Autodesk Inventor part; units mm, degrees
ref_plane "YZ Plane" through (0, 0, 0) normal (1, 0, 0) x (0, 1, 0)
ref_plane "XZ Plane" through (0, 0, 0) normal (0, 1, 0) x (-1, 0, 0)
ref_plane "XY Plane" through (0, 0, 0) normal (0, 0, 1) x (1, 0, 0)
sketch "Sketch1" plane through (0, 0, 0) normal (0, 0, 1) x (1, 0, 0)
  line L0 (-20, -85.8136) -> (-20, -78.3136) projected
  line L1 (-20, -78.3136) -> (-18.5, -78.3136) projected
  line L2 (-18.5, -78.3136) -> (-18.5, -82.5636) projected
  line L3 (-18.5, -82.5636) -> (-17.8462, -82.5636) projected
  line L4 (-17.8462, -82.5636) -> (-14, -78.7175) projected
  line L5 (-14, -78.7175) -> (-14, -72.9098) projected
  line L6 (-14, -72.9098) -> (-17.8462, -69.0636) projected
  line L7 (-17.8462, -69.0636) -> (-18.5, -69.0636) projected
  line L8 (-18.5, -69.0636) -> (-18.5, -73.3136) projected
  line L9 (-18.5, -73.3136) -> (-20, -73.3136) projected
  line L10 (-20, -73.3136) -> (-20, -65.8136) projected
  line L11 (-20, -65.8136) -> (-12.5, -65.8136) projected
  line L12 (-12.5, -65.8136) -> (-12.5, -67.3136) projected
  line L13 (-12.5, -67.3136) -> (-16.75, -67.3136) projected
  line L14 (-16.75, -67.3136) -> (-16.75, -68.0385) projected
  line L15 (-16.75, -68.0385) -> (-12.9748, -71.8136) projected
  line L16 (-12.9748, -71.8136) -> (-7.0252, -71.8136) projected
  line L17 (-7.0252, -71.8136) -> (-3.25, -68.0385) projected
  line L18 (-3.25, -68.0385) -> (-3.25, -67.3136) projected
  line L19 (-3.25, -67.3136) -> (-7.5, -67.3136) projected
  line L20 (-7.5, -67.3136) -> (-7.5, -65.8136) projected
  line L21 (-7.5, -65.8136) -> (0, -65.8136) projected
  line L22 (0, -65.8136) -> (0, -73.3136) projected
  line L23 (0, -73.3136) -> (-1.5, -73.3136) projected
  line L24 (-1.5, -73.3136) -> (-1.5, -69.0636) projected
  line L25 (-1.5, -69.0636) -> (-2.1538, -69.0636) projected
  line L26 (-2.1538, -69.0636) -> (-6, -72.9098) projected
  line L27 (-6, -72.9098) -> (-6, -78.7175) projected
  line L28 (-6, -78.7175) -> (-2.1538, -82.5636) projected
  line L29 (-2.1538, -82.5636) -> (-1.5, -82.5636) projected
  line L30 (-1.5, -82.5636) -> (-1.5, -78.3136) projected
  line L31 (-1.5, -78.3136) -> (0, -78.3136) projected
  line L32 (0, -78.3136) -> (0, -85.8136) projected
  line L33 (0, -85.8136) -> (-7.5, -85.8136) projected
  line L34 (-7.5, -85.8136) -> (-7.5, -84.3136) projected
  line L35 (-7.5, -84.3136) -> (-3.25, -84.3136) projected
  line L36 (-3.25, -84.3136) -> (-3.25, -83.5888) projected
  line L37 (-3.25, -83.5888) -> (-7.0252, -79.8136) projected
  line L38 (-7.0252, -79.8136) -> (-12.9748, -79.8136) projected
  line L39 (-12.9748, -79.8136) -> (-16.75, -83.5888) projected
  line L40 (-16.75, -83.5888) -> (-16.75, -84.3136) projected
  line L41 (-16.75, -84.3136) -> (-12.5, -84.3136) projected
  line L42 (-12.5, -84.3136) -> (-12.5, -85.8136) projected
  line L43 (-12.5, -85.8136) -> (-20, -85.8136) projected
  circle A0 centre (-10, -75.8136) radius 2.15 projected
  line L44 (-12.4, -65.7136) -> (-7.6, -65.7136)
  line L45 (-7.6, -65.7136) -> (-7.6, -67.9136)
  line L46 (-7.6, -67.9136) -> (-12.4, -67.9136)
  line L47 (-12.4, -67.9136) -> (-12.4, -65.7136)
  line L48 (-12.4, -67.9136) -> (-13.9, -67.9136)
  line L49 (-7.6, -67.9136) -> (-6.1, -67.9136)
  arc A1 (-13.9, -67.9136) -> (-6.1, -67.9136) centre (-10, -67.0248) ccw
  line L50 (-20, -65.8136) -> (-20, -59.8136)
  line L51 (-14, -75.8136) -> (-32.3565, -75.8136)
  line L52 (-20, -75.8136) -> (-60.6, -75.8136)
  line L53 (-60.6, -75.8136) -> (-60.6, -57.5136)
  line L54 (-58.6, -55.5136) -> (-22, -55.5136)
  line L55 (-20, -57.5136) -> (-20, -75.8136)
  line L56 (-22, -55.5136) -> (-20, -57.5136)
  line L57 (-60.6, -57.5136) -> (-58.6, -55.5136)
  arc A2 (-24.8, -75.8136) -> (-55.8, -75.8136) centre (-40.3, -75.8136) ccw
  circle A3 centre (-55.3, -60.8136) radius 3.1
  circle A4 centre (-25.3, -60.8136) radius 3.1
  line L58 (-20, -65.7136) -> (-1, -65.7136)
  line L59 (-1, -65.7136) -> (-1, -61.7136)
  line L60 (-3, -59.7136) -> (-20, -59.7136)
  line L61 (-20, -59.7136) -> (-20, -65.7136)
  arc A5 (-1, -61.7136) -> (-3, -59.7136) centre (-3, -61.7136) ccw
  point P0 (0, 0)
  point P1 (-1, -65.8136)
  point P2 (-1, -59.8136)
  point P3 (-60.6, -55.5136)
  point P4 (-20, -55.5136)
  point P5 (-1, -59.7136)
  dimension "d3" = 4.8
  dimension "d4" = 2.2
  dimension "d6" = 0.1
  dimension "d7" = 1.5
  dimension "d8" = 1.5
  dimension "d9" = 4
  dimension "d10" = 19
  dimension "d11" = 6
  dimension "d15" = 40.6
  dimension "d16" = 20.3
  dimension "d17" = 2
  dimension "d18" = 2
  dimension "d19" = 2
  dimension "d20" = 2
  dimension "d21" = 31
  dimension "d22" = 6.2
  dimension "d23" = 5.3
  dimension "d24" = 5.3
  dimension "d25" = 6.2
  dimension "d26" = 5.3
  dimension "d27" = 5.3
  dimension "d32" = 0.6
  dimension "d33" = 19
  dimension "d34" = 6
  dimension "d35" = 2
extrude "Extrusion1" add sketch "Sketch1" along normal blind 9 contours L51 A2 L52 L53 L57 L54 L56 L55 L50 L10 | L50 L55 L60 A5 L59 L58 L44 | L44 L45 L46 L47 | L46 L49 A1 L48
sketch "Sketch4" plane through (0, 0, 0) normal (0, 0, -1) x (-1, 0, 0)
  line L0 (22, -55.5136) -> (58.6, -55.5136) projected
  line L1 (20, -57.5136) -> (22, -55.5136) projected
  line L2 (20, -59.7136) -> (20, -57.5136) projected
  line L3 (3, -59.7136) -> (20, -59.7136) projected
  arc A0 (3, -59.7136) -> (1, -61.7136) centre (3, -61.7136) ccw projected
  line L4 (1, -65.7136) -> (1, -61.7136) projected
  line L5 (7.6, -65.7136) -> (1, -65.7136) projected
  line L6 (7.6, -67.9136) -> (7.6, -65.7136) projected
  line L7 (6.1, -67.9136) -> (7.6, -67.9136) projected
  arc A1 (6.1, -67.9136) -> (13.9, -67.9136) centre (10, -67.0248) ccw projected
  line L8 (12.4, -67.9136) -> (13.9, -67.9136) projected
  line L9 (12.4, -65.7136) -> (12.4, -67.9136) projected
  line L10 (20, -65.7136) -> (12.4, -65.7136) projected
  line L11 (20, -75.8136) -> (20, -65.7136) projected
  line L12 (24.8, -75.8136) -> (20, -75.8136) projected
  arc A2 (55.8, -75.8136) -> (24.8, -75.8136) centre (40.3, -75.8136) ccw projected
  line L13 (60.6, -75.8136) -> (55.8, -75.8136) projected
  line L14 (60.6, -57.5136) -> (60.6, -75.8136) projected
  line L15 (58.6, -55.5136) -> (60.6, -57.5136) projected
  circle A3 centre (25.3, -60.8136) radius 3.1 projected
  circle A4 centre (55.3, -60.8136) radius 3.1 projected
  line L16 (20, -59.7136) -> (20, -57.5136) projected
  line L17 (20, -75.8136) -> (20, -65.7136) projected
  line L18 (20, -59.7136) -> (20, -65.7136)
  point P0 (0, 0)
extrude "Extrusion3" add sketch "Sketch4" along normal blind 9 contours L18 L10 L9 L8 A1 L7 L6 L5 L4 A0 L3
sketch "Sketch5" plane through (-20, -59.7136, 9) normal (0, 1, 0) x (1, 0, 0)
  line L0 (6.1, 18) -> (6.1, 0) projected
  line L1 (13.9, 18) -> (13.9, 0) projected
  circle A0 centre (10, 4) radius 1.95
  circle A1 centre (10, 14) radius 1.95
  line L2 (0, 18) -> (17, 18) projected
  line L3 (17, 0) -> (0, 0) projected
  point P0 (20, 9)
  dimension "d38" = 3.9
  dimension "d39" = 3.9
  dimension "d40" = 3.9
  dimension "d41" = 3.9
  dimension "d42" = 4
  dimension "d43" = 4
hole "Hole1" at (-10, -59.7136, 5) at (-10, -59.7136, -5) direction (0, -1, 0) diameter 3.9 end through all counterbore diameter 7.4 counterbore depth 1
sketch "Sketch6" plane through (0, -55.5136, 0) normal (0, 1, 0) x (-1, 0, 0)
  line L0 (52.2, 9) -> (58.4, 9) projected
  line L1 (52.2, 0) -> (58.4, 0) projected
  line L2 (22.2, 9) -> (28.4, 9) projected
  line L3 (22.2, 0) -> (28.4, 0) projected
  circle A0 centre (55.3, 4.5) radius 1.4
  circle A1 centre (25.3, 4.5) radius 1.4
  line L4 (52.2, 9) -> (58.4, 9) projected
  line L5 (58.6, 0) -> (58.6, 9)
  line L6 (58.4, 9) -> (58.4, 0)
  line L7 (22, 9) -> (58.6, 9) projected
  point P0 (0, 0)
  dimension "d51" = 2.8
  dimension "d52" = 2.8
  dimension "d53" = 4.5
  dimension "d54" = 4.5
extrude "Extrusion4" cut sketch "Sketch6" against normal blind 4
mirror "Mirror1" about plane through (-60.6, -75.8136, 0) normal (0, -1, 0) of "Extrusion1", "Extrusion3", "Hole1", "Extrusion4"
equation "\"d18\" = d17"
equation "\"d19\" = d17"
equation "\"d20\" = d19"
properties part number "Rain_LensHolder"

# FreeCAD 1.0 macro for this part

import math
import FreeCAD as App
import Part
import Sketcher

V = App.Vector

doc = App.newDocument("Part")
body = doc.addObject("PartDesign::Body", "Body")

# Sketch on XY plane
sketch1 = body.newObject("Sketcher::SketchObject", "Sketch")
sketch1.AttachmentSupport = (doc.getObject("XY_Plane"), [""])
sketch1.MapMode = "FlatFace"
sketch1.addGeometry([
    Part.LineSegment(V(-24.8, -75.8136, 0), V(-20, -75.8136, 0)),  # 0
    Part.LineSegment(V(-20, -75.8136, 0), V(-20, -65.7136, 0)),  # 1
    Part.LineSegment(V(-20, -65.7136, 0), V(-12.4, -65.7136, 0)),  # 2
    Part.LineSegment(V(-12.4, -65.7136, 0), V(-12.4, -67.9136, 0)),  # 3
    Part.LineSegment(V(-12.4, -67.9136, 0), V(-13.9, -67.9136, 0)),  # 4
    Part.ArcOfCircle(Part.Circle(V(-10, -67.0248, 0), V(0, 0, 1), 3.999996), math.radians(-167.161703), math.radians(-12.838297)),  # 5
    Part.LineSegment(V(-6.1, -67.9136, 0), V(-7.6, -67.9136, 0)),  # 6
    Part.LineSegment(V(-7.6, -67.9136, 0), V(-7.6, -65.7136, 0)),  # 7
    Part.LineSegment(V(-7.6, -65.7136, 0), V(-1, -65.7136, 0)),  # 8
    Part.LineSegment(V(-1, -65.7136, 0), V(-1, -61.7136, 0)),  # 9
    Part.ArcOfCircle(Part.Circle(V(-3, -61.7136, 0), V(0, 0, 1), 2), math.radians(0), math.radians(90)),  # 10
    Part.LineSegment(V(-3, -59.7136, 0), V(-20, -59.7136, 0)),  # 11
    Part.LineSegment(V(-20, -59.7136, 0), V(-20, -57.5136, 0)),  # 12
    Part.LineSegment(V(-20, -57.5136, 0), V(-22, -55.5136, 0)),  # 13
    Part.LineSegment(V(-22, -55.5136, 0), V(-58.6, -55.5136, 0)),  # 14
    Part.LineSegment(V(-58.6, -55.5136, 0), V(-60.6, -57.5136, 0)),  # 15
    Part.LineSegment(V(-60.6, -57.5136, 0), V(-60.6, -75.8136, 0)),  # 16
    Part.LineSegment(V(-60.6, -75.8136, 0), V(-55.8, -75.8136, 0)),  # 17
    Part.ArcOfCircle(Part.Circle(V(-40.3, -75.8136, 0), V(0, 0, 1), 15.5), math.radians(0), math.radians(180)),  # 18
    Part.Circle(V(-55.3, -60.8136, 0), V(0, 0, 1), 3.1),  # 19
    Part.Circle(V(-25.3, -60.8136, 0), V(0, 0, 1), 3.1),  # 20
], False)
sketch1.addConstraint([
    Sketcher.Constraint("Coincident", 0, 2, 1, 1),
    Sketcher.Constraint("Coincident", 1, 2, 2, 1),
    Sketcher.Constraint("Coincident", 2, 2, 3, 1),
    Sketcher.Constraint("Coincident", 3, 2, 4, 1),
    Sketcher.Constraint("Coincident", 4, 2, 5, 1),
    Sketcher.Constraint("Coincident", 5, 2, 6, 1),
    Sketcher.Constraint("Coincident", 6, 2, 7, 1),
    Sketcher.Constraint("Coincident", 7, 2, 8, 1),
    Sketcher.Constraint("Coincident", 8, 2, 9, 1),
    Sketcher.Constraint("Tangent", 9, 2, 10, 1),
    Sketcher.Constraint("Tangent", 10, 2, 11, 1),
    Sketcher.Constraint("Coincident", 11, 2, 12, 1),
    Sketcher.Constraint("Coincident", 12, 2, 13, 1),
    Sketcher.Constraint("Coincident", 13, 2, 14, 1),
    Sketcher.Constraint("Coincident", 14, 2, 15, 1),
    Sketcher.Constraint("Coincident", 15, 2, 16, 1),
    Sketcher.Constraint("Coincident", 16, 2, 17, 1),
    Sketcher.Constraint("Coincident", 17, 2, 18, 2),
    Sketcher.Constraint("Coincident", 18, 1, 0, 1),
    Sketcher.Constraint("Horizontal", 0),
    Sketcher.Constraint("Vertical", 1),
    Sketcher.Constraint("Horizontal", 2),
    Sketcher.Constraint("Vertical", 3),
    Sketcher.Constraint("Horizontal", 4),
    Sketcher.Constraint("Horizontal", 6),
    Sketcher.Constraint("Vertical", 7),
    Sketcher.Constraint("Horizontal", 8),
    Sketcher.Constraint("Vertical", 9),
    Sketcher.Constraint("Horizontal", 11),
    Sketcher.Constraint("Vertical", 12),
    Sketcher.Constraint("Horizontal", 14),
    Sketcher.Constraint("Vertical", 16),
    Sketcher.Constraint("Horizontal", 17),
    Sketcher.Constraint("Equal", 19, 20),
    Sketcher.Constraint("Perpendicular", 13, 15),
    Sketcher.Constraint("Horizontal", 19, 3, 20, 3),
    Sketcher.Constraint("Horizontal", 18, 3, 0, 2),
    Sketcher.Constraint("Horizontal", 4, 2, 5, 2),
    Sketcher.Constraint("Horizontal", 2, 2, 7, 2),
    Sketcher.Constraint("Horizontal", 12, 2, 15, 2),
    Sketcher.Constraint("Horizontal", 0, 2, 16, 2),
    Sketcher.Constraint("Vertical", 1, 2, 11, 2),
    Sketcher.Constraint("Equal", 4, 6),
    Sketcher.Constraint("Equal", 0, 17),
    Sketcher.Constraint("Equal", 7, 12),
    Sketcher.Constraint("Equal", 13, 15),
    Sketcher.Constraint("Radius", 5, 4.0),
    Sketcher.Constraint("Radius", 10, 2.0),
    Sketcher.Constraint("Diameter", 19, 6.2),
    Sketcher.Constraint("Radius", 18, 15.5),
    Sketcher.Constraint("DistanceY", 9, 1, 9, 2, 4.0),
    Sketcher.Constraint("DistanceX", 0, 1, 0, 2, 4.8),
    Sketcher.Constraint("DistanceX", 4, 2, 4, 1, 1.5),
    Sketcher.Constraint("DistanceY", 3, 2, 3, 1, 2.2),
    Sketcher.Constraint("DistanceX", 13, 2, 12, 2, 2.0),
    Sketcher.Constraint("DistanceX", 20, 3, 0, 2, 5.3),
    Sketcher.Constraint("DistanceX", 3, 2, 6, 2, 4.8),
    Sketcher.Constraint("DistanceY", 20, 3, 13, 2, 5.3),
    Sketcher.Constraint("DistanceY", 18, 3, 14, 2, 20.3),
    Sketcher.Constraint("DistanceX", 15, 2, 19, 3, 5.3),
    Sketcher.Constraint("DistanceX", 11, 2, 11, 1, 17.0),
    Sketcher.Constraint("DistanceX", 2, 1, 2, 2, 7.6),
    Sketcher.Constraint("DistanceX", 5, 3, -1, 1, 10.0),
    Sketcher.Constraint("DistanceY", 5, 3, -1, 1, 67.0248),
])
pad1 = body.newObject("PartDesign::Pad", "Pad")
pad1.Profile = sketch1
pad1.Length = 9

# Sketch on XY plane
sketch2 = body.newObject("Sketcher::SketchObject", "Sketch001")
sketch2.AttachmentSupport = (doc.getObject("XY_Plane"), [""])
sketch2.MapMode = "FlatFace"
sketch2.addGeometry([
    Part.LineSegment(V(-20, -65.7136, 0), V(-20, -59.7136, 0)),  # 0
    Part.LineSegment(V(-20, -59.7136, 0), V(-3, -59.7136, 0)),  # 1
    Part.ArcOfCircle(Part.Circle(V(-3, -61.7136, 0), V(0, 0, 1), 2), math.radians(0), math.radians(90)),  # 2
    Part.LineSegment(V(-1, -61.7136, 0), V(-1, -65.7136, 0)),  # 3
    Part.LineSegment(V(-1, -65.7136, 0), V(-7.6, -65.7136, 0)),  # 4
    Part.LineSegment(V(-7.6, -65.7136, 0), V(-7.6, -67.9136, 0)),  # 5
    Part.LineSegment(V(-7.6, -67.9136, 0), V(-6.1, -67.9136, 0)),  # 6
    Part.ArcOfCircle(Part.Circle(V(-10, -67.0248, 0), V(0, 0, 1), 3.999996), math.radians(-167.161703), math.radians(-12.838297)),  # 7
    Part.LineSegment(V(-13.9, -67.9136, 0), V(-12.4, -67.9136, 0)),  # 8
    Part.LineSegment(V(-12.4, -67.9136, 0), V(-12.4, -65.7136, 0)),  # 9
    Part.LineSegment(V(-12.4, -65.7136, 0), V(-20, -65.7136, 0)),  # 10
], False)
sketch2.addConstraint([
    Sketcher.Constraint("Coincident", 0, 2, 1, 1),
    Sketcher.Constraint("Tangent", 1, 2, 2, 2),
    Sketcher.Constraint("Tangent", 2, 1, 3, 1),
    Sketcher.Constraint("Coincident", 3, 2, 4, 1),
    Sketcher.Constraint("Coincident", 4, 2, 5, 1),
    Sketcher.Constraint("Coincident", 5, 2, 6, 1),
    Sketcher.Constraint("Coincident", 6, 2, 7, 2),
    Sketcher.Constraint("Coincident", 7, 1, 8, 1),
    Sketcher.Constraint("Coincident", 8, 2, 9, 1),
    Sketcher.Constraint("Coincident", 9, 2, 10, 1),
    Sketcher.Constraint("Coincident", 10, 2, 0, 1),
    Sketcher.Constraint("Vertical", 0),
    Sketcher.Constraint("Horizontal", 1),
    Sketcher.Constraint("Vertical", 3),
    Sketcher.Constraint("Horizontal", 4),
    Sketcher.Constraint("Vertical", 5),
    Sketcher.Constraint("Horizontal", 6),
    Sketcher.Constraint("Horizontal", 8),
    Sketcher.Constraint("Vertical", 9),
    Sketcher.Constraint("Horizontal", 10),
    Sketcher.Constraint("Horizontal", 6, 2, 7, 1),
    Sketcher.Constraint("Horizontal", 4, 2, 9, 2),
    Sketcher.Constraint("Equal", 6, 8),
    Sketcher.Constraint("Radius", 2, 2.0),
    Sketcher.Constraint("Radius", 7, 4.0),
    Sketcher.Constraint("DistanceX", 1, 1, 1, 2, 17.0),
    Sketcher.Constraint("DistanceY", 0, 1, 0, 2, 6.0),
    Sketcher.Constraint("DistanceX", 4, 2, 4, 1, 6.6),
    Sketcher.Constraint("DistanceX", 6, 1, 6, 2, 1.5),
    Sketcher.Constraint("DistanceX", 10, 2, 10, 1, 7.6),
    Sketcher.Constraint("DistanceY", 5, 2, 5, 1, 2.2),
    Sketcher.Constraint("DistanceX", 2, 3, -1, 1, 3.0),
    Sketcher.Constraint("DistanceY", 2, 3, -1, 1, 61.7136),
])
pad2 = body.newObject("PartDesign::Pad", "Pad001")
pad2.Profile = sketch2
pad2.Length = 9
pad2.Reversed = True

# Sketch on XZ plane
sketch3 = body.newObject("Sketcher::SketchObject", "Sketch002")
sketch3.AttachmentSupport = (doc.getObject("XZ_Plane"), [""])
sketch3.MapMode = "FlatFace"
sketch3.AttachmentOffset = App.Placement(V(0, 0, 59.7136), App.Rotation())
sketch3.addGeometry([
    Part.Circle(V(-10, 5, 0), V(0, 0, 1), 1.95),
    Part.Circle(V(-10, -5, 0), V(0, 0, 1), 1.95),
], False)
sketch3.addConstraint([
    Sketcher.Constraint("Equal", 0, 1),
    Sketcher.Constraint("Symmetric", 0, 3, 1, 3, -1),
    Sketcher.Constraint("Diameter", 0, 3.9),
    Sketcher.Constraint("DistanceX", 0, 3, -1, 1, 10.0),
    Sketcher.Constraint("DistanceY", -1, 1, 0, 3, 5.0),
])
doc.recompute()
hole = body.newObject("PartDesign::Hole", "Hole")
hole.Profile = sketch3
hole.ThreadType = "None"
hole.Diameter = 3.9
hole.DepthType = "ThroughAll"
hole.HoleCutType = "Counterbore"
hole.HoleCutDiameter = 7.4
hole.HoleCutDepth = 1
hole.Reversed = True

# Sketch on XZ plane
sketch4 = body.newObject("Sketcher::SketchObject", "Sketch003")
sketch4.AttachmentSupport = (doc.getObject("XZ_Plane"), [""])
sketch4.MapMode = "FlatFace"
sketch4.AttachmentOffset = App.Placement(V(0, 0, 55.5136), App.Rotation())
sketch4.addGeometry([
    Part.Circle(V(-55.3, 4.5, 0), V(0, 0, 1), 1.4),
    Part.Circle(V(-25.3, 4.5, 0), V(0, 0, 1), 1.4),
], False)
sketch4.addConstraint([
    Sketcher.Constraint("Equal", 0, 1),
    Sketcher.Constraint("Horizontal", 0, 3, 1, 3),
    Sketcher.Constraint("Diameter", 0, 2.8),
    Sketcher.Constraint("DistanceY", -1, 1, 0, 3, 4.5),
    Sketcher.Constraint("DistanceX", 0, 3, 1, 3, 30.0),
    Sketcher.Constraint("DistanceX", 0, 3, -1, 1, 55.3),
])
pocket1 = body.newObject("PartDesign::Pocket", "Pocket")
pocket1.Profile = sketch4
pocket1.Length = 4
pocket1.Reversed = True
doc.recompute()

datumplane = body.newObject("PartDesign::Plane", "DatumPlane")
datumplane.AttachmentSupport = (doc.getObject("XZ_Plane"), [""])
datumplane.MapMode = "FlatFace"
datumplane.AttachmentOffset = App.Placement(V(0, 0, 75.8136), App.Rotation())
mirrored = body.newObject("PartDesign::Mirrored", "Mirrored")
mirrored.Originals = [pad1, pad2, hole, pocket1]
mirrored.MirrorPlane = (datumplane, [""])
body.Tip = mirrored

doc.recompute()
